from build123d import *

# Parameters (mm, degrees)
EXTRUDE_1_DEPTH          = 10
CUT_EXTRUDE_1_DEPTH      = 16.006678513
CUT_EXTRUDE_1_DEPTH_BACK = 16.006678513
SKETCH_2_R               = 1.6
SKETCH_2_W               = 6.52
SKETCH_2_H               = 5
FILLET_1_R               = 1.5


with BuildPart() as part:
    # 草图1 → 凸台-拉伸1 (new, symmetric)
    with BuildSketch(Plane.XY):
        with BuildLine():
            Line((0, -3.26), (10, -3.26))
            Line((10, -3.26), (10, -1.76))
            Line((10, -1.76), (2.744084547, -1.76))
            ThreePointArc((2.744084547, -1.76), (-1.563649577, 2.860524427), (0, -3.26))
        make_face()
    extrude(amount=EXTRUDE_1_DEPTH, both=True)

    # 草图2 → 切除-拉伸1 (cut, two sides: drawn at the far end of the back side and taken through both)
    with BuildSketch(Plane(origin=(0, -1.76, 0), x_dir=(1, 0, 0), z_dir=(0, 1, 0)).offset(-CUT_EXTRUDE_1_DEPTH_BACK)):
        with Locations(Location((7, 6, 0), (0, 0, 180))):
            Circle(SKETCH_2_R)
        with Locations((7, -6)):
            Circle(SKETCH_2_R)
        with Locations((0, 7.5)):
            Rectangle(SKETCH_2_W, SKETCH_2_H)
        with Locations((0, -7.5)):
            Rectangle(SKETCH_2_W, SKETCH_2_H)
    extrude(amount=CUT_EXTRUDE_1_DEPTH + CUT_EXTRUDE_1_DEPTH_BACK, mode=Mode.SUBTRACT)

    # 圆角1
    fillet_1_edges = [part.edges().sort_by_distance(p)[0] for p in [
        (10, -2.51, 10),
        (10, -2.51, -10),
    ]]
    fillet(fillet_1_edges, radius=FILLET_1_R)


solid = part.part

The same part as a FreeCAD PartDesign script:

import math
import FreeCAD as App
import Part
import Sketcher


def edges_at(feature, points):
    """Names of the edges that pass closest to the given points."""
    edges = feature.Shape.Edges
    near = lambda p: min(range(len(edges)), key=lambda i: edges[i].distToShape(Part.Vertex(*p))[0])
    return sorted({f"Edge{near(p) + 1}" for p in points})

doc = App.newDocument("Part")
body = doc.addObject("PartDesign::Body", "Body")

# Sketch on XY plane
sketch1 = body.newObject("Sketcher::SketchObject", "Sketch")
sketch1.AttachmentSupport = (doc.getObject("XY_Plane"), [""])
sketch1.MapMode = "FlatFace"
sketch1.addGeometry([
    Part.LineSegment(App.Vector(0, -3.3, 0), App.Vector(10, -3.3, 0)),
    Part.LineSegment(App.Vector(10, -3.3, 0), App.Vector(10, -1.8, 0)),
    Part.LineSegment(App.Vector(10, -1.8, 0), App.Vector(2.7, -1.8, 0)),
    Part.ArcOfCircle(Part.Circle(App.Vector(0, 0, 0), App.Vector(0, 0, 1), 3.3), math.radians(-33), math.radians(270)),
], False)
sketch1.addConstraint([
    Sketcher.Constraint("Coincident", 0, 2, 1, 1),
    Sketcher.Constraint("Coincident", 1, 2, 2, 1),
    Sketcher.Constraint("Coincident", 2, 2, 3, 1),
    Sketcher.Constraint("Tangent", 3, 2, 0, 1),
    Sketcher.Constraint("Horizontal", 0),
    Sketcher.Constraint("Vertical", 1),
    Sketcher.Constraint("Horizontal", 2),
    Sketcher.Constraint("Coincident", 3, 3, -1, 1),
    Sketcher.Constraint("DistanceX", 0, 1, 0, 2, 10.0),
    Sketcher.Constraint("Radius", 3, 3.26),
    Sketcher.Constraint("DistanceY", 1, 1, 1, 2, 1.5),
])
pad1 = body.newObject("PartDesign::Pad", "Pad")
pad1.Profile = sketch1
pad1.Length = 20
pad1.Midplane = True

# Sketch on XZ plane
sketch2 = body.newObject("Sketcher::SketchObject", "Sketch001")
sketch2.AttachmentSupport = (doc.getObject("XZ_Plane"), [""])
sketch2.MapMode = "FlatFace"
sketch2.AttachmentOffset = App.Placement(App.Vector(0, 0, 1.76), App.Rotation())
sketch2.addGeometry([
    Part.Circle(App.Vector(7, -6, 0), App.Vector(0, 0, 1), 1.6),  # 0
    Part.Circle(App.Vector(7, 6, 0), App.Vector(0, 0, 1), 1.6),  # 1
    Part.LineSegment(App.Vector(-3.3, -10, 0), App.Vector(-3.3, -5, 0)),  # 2
    Part.LineSegment(App.Vector(-3.3, -5, 0), App.Vector(3.3, -5, 0)),  # 3
    Part.LineSegment(App.Vector(3.3, -5, 0), App.Vector(3.3, -10, 0)),  # 4
    Part.LineSegment(App.Vector(3.3, -10, 0), App.Vector(-3.3, -10, 0)),  # 5
    Part.LineSegment(App.Vector(-3.3, 5, 0), App.Vector(-3.3, 10, 0)),  # 6
    Part.LineSegment(App.Vector(-3.3, 10, 0), App.Vector(3.3, 10, 0)),  # 7
    Part.LineSegment(App.Vector(3.3, 10, 0), App.Vector(3.3, 5, 0)),  # 8
    Part.LineSegment(App.Vector(3.3, 5, 0), App.Vector(-3.3, 5, 0)),  # 9
], False)
sketch2.addConstraint([
    Sketcher.Constraint("Coincident", 2, 2, 3, 1),
    Sketcher.Constraint("Coincident", 3, 2, 4, 1),
    Sketcher.Constraint("Coincident", 4, 2, 5, 1),
    Sketcher.Constraint("Coincident", 5, 2, 2, 1),
    Sketcher.Constraint("Coincident", 6, 2, 7, 1),
    Sketcher.Constraint("Coincident", 7, 2, 8, 1),
    Sketcher.Constraint("Coincident", 8, 2, 9, 1),
    Sketcher.Constraint("Coincident", 9, 2, 6, 1),
    Sketcher.Constraint("Vertical", 2),
    Sketcher.Constraint("Horizontal", 3),
    Sketcher.Constraint("Vertical", 4),
    Sketcher.Constraint("Horizontal", 5),
    Sketcher.Constraint("Vertical", 6),
    Sketcher.Constraint("Horizontal", 7),
    Sketcher.Constraint("Vertical", 8),
    Sketcher.Constraint("Horizontal", 9),
    Sketcher.Constraint("Equal", 0, 1),
    Sketcher.Constraint("Symmetric", 4, 2, 6, 2, -1, 1),
    Sketcher.Constraint("Symmetric", 2, 2, 8, 2, -1, 1),
    Sketcher.Constraint("Symmetric", 0, 3, 1, 3, -1),
    Sketcher.Constraint("Vertical", 5, 2, 6, 2),
    Sketcher.Constraint("Diameter", 0, 3.2),
    Sketcher.Constraint("DistanceY", 2, 1, 2, 2, 5.0),
    Sketcher.Constraint("DistanceX", -1, 1, 0, 3, 7.0),
    Sketcher.Constraint("DistanceY", 0, 3, -1, 1, 6.0),
    Sketcher.Constraint("DistanceY", 2, 2, -1, 1, 5.0),
    Sketcher.Constraint("DistanceX", 3, 1, 3, 2, 6.52),
])
pocket1 = body.newObject("PartDesign::Pocket", "Pocket")
pocket1.Profile = sketch2
pocket1.Type = "ThroughAll"
pocket1.Midplane = True
doc.recompute()

fillet = body.newObject("PartDesign::Fillet", "Fillet")
fillet.Base = (pocket1, edges_at(pocket1, [(10, -2.51, 10), (10, -2.51, -10)]))
fillet.Radius = 1.5

doc.recompute()
